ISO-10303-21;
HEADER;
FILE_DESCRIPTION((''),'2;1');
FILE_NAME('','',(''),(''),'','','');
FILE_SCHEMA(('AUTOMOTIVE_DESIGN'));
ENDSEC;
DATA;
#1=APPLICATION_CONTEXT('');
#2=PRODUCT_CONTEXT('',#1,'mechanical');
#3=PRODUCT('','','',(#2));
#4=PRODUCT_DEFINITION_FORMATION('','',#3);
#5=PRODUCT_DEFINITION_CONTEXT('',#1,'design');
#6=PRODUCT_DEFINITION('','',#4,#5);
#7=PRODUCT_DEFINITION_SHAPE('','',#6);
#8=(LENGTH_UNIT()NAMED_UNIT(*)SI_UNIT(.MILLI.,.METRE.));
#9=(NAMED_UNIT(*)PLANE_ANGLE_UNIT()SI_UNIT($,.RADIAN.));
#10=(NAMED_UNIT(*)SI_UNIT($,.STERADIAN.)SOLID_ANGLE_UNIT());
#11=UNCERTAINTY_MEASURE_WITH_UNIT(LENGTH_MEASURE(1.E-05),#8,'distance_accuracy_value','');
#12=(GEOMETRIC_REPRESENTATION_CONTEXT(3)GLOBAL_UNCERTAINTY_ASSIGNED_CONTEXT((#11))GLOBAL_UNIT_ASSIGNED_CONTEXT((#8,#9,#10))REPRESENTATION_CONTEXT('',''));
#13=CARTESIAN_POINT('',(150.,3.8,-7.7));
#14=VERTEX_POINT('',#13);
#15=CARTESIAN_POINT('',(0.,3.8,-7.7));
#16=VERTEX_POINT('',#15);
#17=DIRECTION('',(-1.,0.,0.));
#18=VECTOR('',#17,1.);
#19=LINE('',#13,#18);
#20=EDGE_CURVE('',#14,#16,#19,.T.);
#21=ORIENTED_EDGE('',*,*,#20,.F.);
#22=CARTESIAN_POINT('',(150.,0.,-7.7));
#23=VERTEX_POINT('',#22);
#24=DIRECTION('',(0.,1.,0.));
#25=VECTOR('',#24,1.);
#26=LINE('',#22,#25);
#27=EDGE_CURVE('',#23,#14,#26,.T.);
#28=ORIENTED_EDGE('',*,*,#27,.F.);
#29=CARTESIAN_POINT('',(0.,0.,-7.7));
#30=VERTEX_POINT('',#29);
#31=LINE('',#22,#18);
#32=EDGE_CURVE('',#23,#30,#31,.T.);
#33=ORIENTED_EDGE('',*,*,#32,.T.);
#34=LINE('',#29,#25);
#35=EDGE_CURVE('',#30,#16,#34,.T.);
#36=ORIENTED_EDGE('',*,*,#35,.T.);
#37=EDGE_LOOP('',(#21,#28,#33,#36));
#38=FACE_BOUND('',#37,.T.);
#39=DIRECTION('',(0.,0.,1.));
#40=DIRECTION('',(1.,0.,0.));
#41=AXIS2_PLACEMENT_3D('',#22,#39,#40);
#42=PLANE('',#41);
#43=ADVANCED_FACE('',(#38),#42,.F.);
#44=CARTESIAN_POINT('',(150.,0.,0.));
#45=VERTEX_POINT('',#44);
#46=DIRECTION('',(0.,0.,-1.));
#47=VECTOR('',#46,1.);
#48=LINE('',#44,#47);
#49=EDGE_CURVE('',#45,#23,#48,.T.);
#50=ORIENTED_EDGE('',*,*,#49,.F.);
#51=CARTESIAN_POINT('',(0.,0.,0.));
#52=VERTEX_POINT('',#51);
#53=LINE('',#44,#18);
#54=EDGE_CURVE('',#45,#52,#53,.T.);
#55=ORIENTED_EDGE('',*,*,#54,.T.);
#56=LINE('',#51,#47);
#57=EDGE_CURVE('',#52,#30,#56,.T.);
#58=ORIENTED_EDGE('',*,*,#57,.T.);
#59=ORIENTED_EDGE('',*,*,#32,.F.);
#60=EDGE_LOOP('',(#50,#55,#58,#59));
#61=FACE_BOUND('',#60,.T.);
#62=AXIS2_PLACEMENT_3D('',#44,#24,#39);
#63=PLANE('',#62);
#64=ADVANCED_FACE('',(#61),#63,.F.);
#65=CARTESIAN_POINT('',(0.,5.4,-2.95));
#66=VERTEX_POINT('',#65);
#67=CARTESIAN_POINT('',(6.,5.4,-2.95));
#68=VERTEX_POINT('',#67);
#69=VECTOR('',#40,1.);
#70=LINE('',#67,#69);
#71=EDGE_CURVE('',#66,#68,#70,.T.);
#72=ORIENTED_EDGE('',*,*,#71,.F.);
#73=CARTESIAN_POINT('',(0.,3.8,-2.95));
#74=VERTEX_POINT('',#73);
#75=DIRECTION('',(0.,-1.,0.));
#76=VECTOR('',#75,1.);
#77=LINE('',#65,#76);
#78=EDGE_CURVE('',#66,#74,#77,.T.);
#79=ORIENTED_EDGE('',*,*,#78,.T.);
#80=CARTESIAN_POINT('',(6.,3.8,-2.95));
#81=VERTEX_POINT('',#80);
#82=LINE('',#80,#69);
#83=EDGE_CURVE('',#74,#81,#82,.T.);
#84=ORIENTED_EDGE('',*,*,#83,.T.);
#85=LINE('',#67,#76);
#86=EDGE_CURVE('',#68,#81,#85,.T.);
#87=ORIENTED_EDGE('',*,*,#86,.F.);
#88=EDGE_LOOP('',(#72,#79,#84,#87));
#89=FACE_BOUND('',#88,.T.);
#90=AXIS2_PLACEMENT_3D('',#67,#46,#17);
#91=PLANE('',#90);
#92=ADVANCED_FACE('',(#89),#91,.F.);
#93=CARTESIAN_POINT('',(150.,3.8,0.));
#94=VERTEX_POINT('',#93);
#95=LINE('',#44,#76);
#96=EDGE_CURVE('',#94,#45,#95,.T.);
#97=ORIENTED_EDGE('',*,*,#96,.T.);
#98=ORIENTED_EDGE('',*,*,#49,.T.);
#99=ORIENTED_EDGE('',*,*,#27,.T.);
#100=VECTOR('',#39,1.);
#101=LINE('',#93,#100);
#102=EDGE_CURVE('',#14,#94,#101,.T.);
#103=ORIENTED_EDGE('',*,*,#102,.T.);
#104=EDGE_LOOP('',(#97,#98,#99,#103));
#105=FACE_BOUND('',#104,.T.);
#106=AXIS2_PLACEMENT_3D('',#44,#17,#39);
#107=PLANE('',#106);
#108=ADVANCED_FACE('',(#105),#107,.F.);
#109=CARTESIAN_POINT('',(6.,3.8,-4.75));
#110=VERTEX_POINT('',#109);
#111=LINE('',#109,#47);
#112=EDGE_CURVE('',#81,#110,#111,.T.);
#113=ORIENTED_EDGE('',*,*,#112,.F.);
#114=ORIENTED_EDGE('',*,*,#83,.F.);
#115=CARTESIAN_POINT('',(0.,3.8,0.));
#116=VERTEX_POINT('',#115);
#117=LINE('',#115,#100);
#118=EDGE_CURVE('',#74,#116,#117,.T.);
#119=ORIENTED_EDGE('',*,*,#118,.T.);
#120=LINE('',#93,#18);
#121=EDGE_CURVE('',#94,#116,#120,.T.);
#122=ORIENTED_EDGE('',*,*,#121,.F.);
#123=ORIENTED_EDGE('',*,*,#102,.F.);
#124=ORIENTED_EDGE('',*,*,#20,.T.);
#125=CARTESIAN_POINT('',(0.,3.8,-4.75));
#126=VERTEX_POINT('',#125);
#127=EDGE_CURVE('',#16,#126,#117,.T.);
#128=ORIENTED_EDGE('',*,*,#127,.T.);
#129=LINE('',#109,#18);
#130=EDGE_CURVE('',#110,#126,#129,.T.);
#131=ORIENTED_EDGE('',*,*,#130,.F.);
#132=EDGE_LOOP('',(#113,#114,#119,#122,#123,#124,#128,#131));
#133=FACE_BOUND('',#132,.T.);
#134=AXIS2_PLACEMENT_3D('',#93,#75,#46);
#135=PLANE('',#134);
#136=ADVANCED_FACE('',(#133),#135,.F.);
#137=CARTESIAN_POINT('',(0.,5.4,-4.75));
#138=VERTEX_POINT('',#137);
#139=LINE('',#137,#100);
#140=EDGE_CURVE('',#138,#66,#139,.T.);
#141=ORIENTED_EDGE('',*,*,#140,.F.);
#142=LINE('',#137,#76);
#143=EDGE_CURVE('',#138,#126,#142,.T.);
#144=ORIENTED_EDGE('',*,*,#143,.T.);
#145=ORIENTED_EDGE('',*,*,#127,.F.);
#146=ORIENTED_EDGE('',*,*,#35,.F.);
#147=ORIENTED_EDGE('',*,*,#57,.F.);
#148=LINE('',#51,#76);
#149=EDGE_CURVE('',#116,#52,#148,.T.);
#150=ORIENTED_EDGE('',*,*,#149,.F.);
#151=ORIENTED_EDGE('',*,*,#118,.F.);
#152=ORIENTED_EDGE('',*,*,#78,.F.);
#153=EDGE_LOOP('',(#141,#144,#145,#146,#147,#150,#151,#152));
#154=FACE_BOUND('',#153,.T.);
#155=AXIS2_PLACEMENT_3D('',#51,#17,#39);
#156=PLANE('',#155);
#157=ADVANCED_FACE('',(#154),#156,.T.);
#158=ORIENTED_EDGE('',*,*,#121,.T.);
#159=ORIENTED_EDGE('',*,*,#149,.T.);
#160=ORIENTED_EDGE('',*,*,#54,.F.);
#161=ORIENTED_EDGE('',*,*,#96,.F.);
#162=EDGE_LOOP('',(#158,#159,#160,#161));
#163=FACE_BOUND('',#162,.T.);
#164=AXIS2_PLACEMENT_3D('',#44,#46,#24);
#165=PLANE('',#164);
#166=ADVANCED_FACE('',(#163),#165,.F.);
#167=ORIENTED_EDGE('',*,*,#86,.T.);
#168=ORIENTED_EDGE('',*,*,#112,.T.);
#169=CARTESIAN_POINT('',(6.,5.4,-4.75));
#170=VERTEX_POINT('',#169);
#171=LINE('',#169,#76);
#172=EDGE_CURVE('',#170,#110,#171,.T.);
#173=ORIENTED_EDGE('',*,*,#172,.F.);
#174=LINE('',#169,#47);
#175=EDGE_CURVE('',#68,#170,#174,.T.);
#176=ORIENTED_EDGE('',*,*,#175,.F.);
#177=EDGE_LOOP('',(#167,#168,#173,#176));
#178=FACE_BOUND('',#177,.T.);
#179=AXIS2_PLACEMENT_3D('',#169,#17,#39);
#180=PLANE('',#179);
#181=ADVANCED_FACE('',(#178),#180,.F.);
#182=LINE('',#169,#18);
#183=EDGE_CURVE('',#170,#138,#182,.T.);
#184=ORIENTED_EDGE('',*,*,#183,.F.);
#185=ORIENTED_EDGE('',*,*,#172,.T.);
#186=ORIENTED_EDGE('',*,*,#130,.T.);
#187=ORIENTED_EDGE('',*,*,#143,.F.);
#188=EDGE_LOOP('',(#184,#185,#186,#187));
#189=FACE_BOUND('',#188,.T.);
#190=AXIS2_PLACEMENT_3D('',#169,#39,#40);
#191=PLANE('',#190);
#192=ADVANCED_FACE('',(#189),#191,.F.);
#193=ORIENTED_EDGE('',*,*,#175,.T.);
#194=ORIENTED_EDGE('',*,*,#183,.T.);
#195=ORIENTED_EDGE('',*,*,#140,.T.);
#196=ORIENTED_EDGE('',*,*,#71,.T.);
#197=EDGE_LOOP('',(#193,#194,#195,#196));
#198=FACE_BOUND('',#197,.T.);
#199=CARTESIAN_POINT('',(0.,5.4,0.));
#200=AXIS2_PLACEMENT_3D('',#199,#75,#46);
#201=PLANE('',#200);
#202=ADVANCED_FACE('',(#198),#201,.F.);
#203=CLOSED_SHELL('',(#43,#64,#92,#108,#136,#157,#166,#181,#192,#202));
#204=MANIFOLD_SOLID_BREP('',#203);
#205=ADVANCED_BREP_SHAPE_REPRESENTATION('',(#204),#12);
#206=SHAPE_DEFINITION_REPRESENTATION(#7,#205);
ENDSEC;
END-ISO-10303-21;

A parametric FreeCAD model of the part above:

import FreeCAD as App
import Part
import Sketcher
from FreeCAD import Vector


def add_polygon(sketch, points):
    """Adds a closed chain of lines whose ends are joined by coincident constraints."""
    first, n = sketch.GeometryCount, len(points)
    for a, b in zip(points, points[1:] + points[:1]):
        sketch.addGeometry(Part.LineSegment(App.Vector(*a, 0), App.Vector(*b, 0)), False)
    for i in range(n):
        sketch.addConstraint(Sketcher.Constraint("Coincident", first + i, 2, first + (i + 1) % n, 1))

doc = App.newDocument("Part")
body = doc.addObject("PartDesign::Body", "Body")

# Sketch on YZ plane
sketch1 = body.newObject("Sketcher::SketchObject", "Sketch")
sketch1.AttachmentSupport = (doc.getObject("YZ_Plane"), [""])
sketch1.MapMode = "FlatFace"
add_polygon(sketch1, [(3.8, 0), (0, 0), (0, -7.7), (3.8, -7.7)])  # lines 0-3
sketch1.addConstraint([
    Sketcher.Constraint("Horizontal", 0),
    Sketcher.Constraint("Vertical", 1),
    Sketcher.Constraint("Horizontal", 2),
    Sketcher.Constraint("Vertical", 3),
    Sketcher.Constraint("Coincident", 0, 2, -1, 1),
    Sketcher.Constraint("DistanceX", 0, 2, 0, 1, 3.8),
    Sketcher.Constraint("DistanceY", 1, 2, 1, 1, 7.7),
])
pad1 = body.newObject("PartDesign::Pad", "Pad")
pad1.Profile = sketch1
pad1.Length = 150

# Sketch on XZ plane
sketch2 = body.newObject("Sketcher::SketchObject", "Sketch001")
sketch2.AttachmentSupport = (doc.getObject("XZ_Plane"), [""])
sketch2.MapMode = "FlatFace"
sketch2.AttachmentOffset = App.Placement(Vector(0, 0, -3.8), App.Rotation())
add_polygon(sketch2, [(0, -4.8), (0, -3), (6, -3), (6, -4.8)])  # lines 0-3
sketch2.addConstraint([
    Sketcher.Constraint("Vertical", 0),
    Sketcher.Constraint("Horizontal", 1),
    Sketcher.Constraint("Vertical", 2),
    Sketcher.Constraint("Horizontal", 3),
    Sketcher.Constraint("PointOnObject", 0, 2, -2),
    Sketcher.Constraint("DistanceX", 1, 1, 1, 2, 6.0),
    Sketcher.Constraint("DistanceY", 0, 1, 0, 2, 1.8),
    Sketcher.Constraint("DistanceY", 0, 2, -1, 1, 2.95),
])
pad2 = body.newObject("PartDesign::Pad", "Pad001")
pad2.Profile = sketch2
pad2.Length = 1.6
pad2.Reversed = True

doc.recompute()
